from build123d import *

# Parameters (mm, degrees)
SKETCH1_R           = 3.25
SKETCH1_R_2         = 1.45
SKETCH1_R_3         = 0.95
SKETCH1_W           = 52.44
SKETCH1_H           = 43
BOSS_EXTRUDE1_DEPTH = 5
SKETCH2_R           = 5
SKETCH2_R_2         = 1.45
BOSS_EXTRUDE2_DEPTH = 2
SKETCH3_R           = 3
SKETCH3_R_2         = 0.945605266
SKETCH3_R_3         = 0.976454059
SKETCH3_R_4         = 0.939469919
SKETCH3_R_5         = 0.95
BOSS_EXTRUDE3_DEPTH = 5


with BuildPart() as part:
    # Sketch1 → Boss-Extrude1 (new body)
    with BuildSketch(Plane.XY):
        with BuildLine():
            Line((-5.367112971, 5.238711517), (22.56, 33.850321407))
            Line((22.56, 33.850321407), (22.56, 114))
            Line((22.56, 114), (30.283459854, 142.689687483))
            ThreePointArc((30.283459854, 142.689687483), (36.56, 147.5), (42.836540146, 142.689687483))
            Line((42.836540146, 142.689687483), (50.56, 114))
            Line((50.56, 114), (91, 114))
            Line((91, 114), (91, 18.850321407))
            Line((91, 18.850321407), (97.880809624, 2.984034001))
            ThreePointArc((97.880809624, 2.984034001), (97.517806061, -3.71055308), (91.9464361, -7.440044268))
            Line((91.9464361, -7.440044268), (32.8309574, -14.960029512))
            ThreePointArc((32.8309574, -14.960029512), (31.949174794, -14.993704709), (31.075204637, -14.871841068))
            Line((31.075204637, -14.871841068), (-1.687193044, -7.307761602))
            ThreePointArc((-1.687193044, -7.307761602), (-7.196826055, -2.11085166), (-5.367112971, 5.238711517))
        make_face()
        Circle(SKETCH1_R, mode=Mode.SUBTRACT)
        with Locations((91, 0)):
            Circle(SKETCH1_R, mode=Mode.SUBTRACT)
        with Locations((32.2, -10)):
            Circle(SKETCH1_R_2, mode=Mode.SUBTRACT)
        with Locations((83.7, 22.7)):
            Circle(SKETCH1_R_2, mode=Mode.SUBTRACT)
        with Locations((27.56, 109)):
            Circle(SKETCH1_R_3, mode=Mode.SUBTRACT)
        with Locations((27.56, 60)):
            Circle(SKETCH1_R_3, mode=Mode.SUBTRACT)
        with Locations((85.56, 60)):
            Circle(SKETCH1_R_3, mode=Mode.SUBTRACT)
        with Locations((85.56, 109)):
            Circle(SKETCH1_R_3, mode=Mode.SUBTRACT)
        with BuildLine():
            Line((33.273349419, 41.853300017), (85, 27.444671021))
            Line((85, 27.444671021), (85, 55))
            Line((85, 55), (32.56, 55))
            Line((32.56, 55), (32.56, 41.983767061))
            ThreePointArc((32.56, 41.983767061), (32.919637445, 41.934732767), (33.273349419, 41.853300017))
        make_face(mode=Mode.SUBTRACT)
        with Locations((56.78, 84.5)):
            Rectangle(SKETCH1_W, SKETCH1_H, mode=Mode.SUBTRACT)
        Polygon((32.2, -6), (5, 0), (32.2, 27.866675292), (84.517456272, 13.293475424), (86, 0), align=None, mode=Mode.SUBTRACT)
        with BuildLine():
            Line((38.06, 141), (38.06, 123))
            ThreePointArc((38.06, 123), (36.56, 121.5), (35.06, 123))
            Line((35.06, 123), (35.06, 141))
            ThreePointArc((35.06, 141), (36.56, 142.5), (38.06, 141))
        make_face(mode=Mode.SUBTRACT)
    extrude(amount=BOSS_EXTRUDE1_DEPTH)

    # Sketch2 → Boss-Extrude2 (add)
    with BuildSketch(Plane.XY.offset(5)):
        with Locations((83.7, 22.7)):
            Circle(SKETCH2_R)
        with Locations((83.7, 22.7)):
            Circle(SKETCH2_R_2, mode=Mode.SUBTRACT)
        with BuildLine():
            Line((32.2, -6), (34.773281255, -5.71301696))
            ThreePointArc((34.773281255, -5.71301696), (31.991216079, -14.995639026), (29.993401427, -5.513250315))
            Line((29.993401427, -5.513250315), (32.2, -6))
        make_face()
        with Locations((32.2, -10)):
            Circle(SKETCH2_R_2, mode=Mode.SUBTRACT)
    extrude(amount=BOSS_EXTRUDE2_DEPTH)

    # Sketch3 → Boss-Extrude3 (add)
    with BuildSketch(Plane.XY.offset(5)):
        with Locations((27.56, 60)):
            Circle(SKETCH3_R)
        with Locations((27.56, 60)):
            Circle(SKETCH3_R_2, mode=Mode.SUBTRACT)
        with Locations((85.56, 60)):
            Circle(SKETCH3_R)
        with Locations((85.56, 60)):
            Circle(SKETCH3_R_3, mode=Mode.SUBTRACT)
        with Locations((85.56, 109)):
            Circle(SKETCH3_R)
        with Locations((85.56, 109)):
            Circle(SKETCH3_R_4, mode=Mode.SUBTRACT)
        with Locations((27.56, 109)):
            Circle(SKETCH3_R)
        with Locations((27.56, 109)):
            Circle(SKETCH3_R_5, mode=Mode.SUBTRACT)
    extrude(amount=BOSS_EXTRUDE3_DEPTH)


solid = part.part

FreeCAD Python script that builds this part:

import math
import FreeCAD as App
import Part
import Sketcher


def add_polygon(sketch, points):
    """Adds a closed chain of lines whose ends are joined by coincident constraints."""
    first, n = sketch.GeometryCount, len(points)
    for a, b in zip(points, points[1:] + points[:1]):
        sketch.addGeometry(Part.LineSegment(App.Vector(*a, 0), App.Vector(*b, 0)), False)
    for i in range(n):
        sketch.addConstraint(Sketcher.Constraint("Coincident", first + i, 2, first + (i + 1) % n, 1))

doc = App.newDocument("Part")
body = doc.addObject("PartDesign::Body", "Body")

# Sketch on XY plane
sketch1 = body.newObject("Sketcher::SketchObject", "Sketch")
sketch1.AttachmentSupport = (doc.getObject("XY_Plane"), [""])
sketch1.MapMode = "FlatFace"
sketch1.addGeometry(Part.LineSegment(App.Vector(22.6, 33.9, 0), App.Vector(-5.4, 5.2, 0)), False)  # 0
sketch1.addGeometry(Part.ArcOfCircle(Part.Circle(App.Vector(0, 0, 0), App.Vector(0, 0, 1), 7.5), math.radians(136), math.radians(257)), False)  # 1
sketch1.addGeometry(Part.LineSegment(App.Vector(-1.7, -7.3, 0), App.Vector(31.1, -14.9, 0)), False)  # 2
sketch1.addGeometry(Part.ArcOfCircle(Part.Circle(App.Vector(32.2, -10, 0), App.Vector(0, 0, 1), 5), math.radians(-103), math.radians(-83)), False)  # 3
sketch1.addGeometry(Part.LineSegment(App.Vector(32.8, -15, 0), App.Vector(91.9, -7.4, 0)), False)  # 4
sketch1.addGeometry(Part.ArcOfCircle(Part.Circle(App.Vector(91, 0, 0), App.Vector(0, 0, 1), 7.5), math.radians(-83), math.radians(23)), False)  # 5
sketch1.addGeometry(Part.LineSegment(App.Vector(97.9, 3, 0), App.Vector(91, 18.9, 0)), False)  # 6
sketch1.addGeometry(Part.LineSegment(App.Vector(91, 18.9, 0), App.Vector(91, 114, 0)), False)  # 7
sketch1.addGeometry(Part.LineSegment(App.Vector(91, 114, 0), App.Vector(50.6, 114, 0)), False)  # 8
sketch1.addGeometry(Part.LineSegment(App.Vector(50.6, 114, 0), App.Vector(42.8, 142.7, 0)), False)  # 9
sketch1.addGeometry(Part.ArcOfCircle(Part.Circle(App.Vector(36.6, 141, 0), App.Vector(0, 0, 1), 6.5), math.radians(15), math.radians(165)), False)  # 10
sketch1.addGeometry(Part.LineSegment(App.Vector(30.3, 142.7, 0), App.Vector(22.6, 114, 0)), False)  # 11
sketch1.addGeometry(Part.LineSegment(App.Vector(22.6, 114, 0), App.Vector(22.6, 33.9, 0)), False)  # 12
sketch1.addGeometry(Part.Circle(App.Vector(91, 0, 0), App.Vector(0, 0, 1), 3.2), False)  # 13
sketch1.addGeometry(Part.Circle(App.Vector(83.7, 22.7, 0), App.Vector(0, 0, 1), 1.4), False)  # 14
sketch1.addGeometry(Part.Circle(App.Vector(85.6, 60, 0), App.Vector(0, 0, 1), 0.9), False)  # 15
sketch1.addGeometry(Part.ArcOfCircle(Part.Circle(App.Vector(32.2, 38, 0), App.Vector(0, 0, 1), 4), math.radians(74.43), math.radians(84.84)), False)  # 16
sketch1.addGeometry(Part.LineSegment(App.Vector(32.6, 42, 0), App.Vector(32.6, 55, 0)), False)  # 17
sketch1.addGeometry(Part.LineSegment(App.Vector(32.6, 55, 0), App.Vector(85, 55, 0)), False)  # 18
sketch1.addGeometry(Part.LineSegment(App.Vector(85, 55, 0), App.Vector(85, 27.4, 0)), False)  # 19
sketch1.addGeometry(Part.LineSegment(App.Vector(85, 27.4, 0), App.Vector(33.3, 41.9, 0)), False)  # 20
sketch1.addGeometry(Part.Circle(App.Vector(32.2, -10, 0), App.Vector(0, 0, 1), 1.4), False)  # 21
add_polygon(sketch1, [(32.2, -6), (5, 0), (32.2, 27.9), (84.5, 13.3), (86, 0)])  # lines 22-26
sketch1.addGeometry(Part.Circle(App.Vector(0, 0, 0), App.Vector(0, 0, 1), 3.2), False)  # 27
sketch1.addGeometry(Part.Circle(App.Vector(27.6, 60, 0), App.Vector(0, 0, 1), 0.9), False)  # 28
add_polygon(sketch1, [(30.6, 63), (30.6, 106), (83, 106), (83, 63)])  # lines 29-32
sketch1.addGeometry(Part.Circle(App.Vector(85.6, 109, 0), App.Vector(0, 0, 1), 0.9), False)  # 33
sketch1.addGeometry(Part.Circle(App.Vector(27.6, 109, 0), App.Vector(0, 0, 1), 0.9), False)  # 34
sketch1.addGeometry(Part.LineSegment(App.Vector(38.1, 141, 0), App.Vector(38.1, 123, 0)), False)  # 35
sketch1.addGeometry(Part.ArcOfCircle(Part.Circle(App.Vector(36.6, 123, 0), App.Vector(0, 0, 1), 1.5), math.radians(180), math.radians(360)), False)  # 36
sketch1.addGeometry(Part.LineSegment(App.Vector(35.1, 123, 0), App.Vector(35.1, 141, 0)), False)  # 37
sketch1.addGeometry(Part.ArcOfCircle(Part.Circle(App.Vector(36.6, 141, 0), App.Vector(0, 0, 1), 1.5), math.radians(0), math.radians(180)), False)  # 38
sketch1.addConstraint([
    Sketcher.Constraint("Tangent", 0, 2, 1, 1),
    Sketcher.Constraint("Tangent", 1, 2, 2, 1),
    Sketcher.Constraint("Tangent", 2, 2, 3, 1),
    Sketcher.Constraint("Tangent", 3, 2, 4, 1),
    Sketcher.Constraint("Tangent", 4, 2, 5, 1),
    Sketcher.Constraint("Tangent", 5, 2, 6, 1),
    Sketcher.Constraint("Coincident", 6, 2, 7, 1),
    Sketcher.Constraint("Coincident", 7, 2, 8, 1),
    Sketcher.Constraint("Coincident", 8, 2, 9, 1),
    Sketcher.Constraint("Tangent", 9, 2, 10, 1),
    Sketcher.Constraint("Tangent", 10, 2, 11, 1),
    Sketcher.Constraint("Coincident", 11, 2, 12, 1),
    Sketcher.Constraint("Coincident", 12, 2, 0, 1),
    Sketcher.Constraint("Coincident", 16, 2, 17, 1),
    Sketcher.Constraint("Coincident", 17, 2, 18, 1),
    Sketcher.Constraint("Coincident", 18, 2, 19, 1),
    Sketcher.Constraint("Coincident", 19, 2, 20, 1),
    Sketcher.Constraint("Tangent", 20, 2, 16, 1),
    Sketcher.Constraint("Tangent", 35, 2, 36, 2),
    Sketcher.Constraint("Tangent", 36, 1, 37, 1),
    Sketcher.Constraint("Tangent", 37, 2, 38, 2),
    Sketcher.Constraint("Tangent", 38, 1, 35, 1),
    Sketcher.Constraint("Vertical", 7),
    Sketcher.Constraint("Horizontal", 8),
    Sketcher.Constraint("Vertical", 12),
    Sketcher.Constraint("Vertical", 17),
    Sketcher.Constraint("Horizontal", 18),
    Sketcher.Constraint("Vertical", 19),
    Sketcher.Constraint("Vertical", 29),
    Sketcher.Constraint("Horizontal", 30),
    Sketcher.Constraint("Vertical", 31),
    Sketcher.Constraint("Horizontal", 32),
    Sketcher.Constraint("Vertical", 35),
    Sketcher.Constraint("Vertical", 37),
    Sketcher.Constraint("Coincident", 1, 3, -1, 1),
    Sketcher.Constraint("Coincident", 27, 3, -1, 1),
    Sketcher.Constraint("Coincident", 13, 3, 5, 3),
    Sketcher.Constraint("Coincident", 21, 3, 3, 3),
    Sketcher.Constraint("Coincident", 38, 3, 10, 3),
    Sketcher.Constraint("Equal", 1, 5),
    Sketcher.Constraint("Equal", 14, 21),
    Sketcher.Constraint("Equal", 13, 27),
    Sketcher.Constraint("Equal", 15, 28),
    Sketcher.Constraint("Equal", 28, 33),
    Sketcher.Constraint("Equal", 33, 34),
    Sketcher.Constraint("PointOnObject", 5, 3, -1),
    Sketcher.Constraint("PointOnObject", 22, 2, -1),
    Sketcher.Constraint("PointOnObject", 25, 2, -1),
    Sketcher.Constraint("Parallel", 0, 23),
    Sketcher.Constraint("Parallel", 20, 24),
    Sketcher.Constraint("Perpendicular", 25, 26),
    Sketcher.Constraint("Horizontal", 15, 3, 28, 3),
    Sketcher.Constraint("Horizontal", 33, 3, 34, 3),
    Sketcher.Constraint("Horizontal", 9, 2, 10, 2),
    Sketcher.Constraint("Horizontal", 8, 2, 11, 2),
    Sketcher.Constraint("Vertical", 3, 3, 16, 3),
    Sketcher.Constraint("Vertical", 15, 3, 33, 3),
    Sketcher.Constraint("Vertical", 28, 3, 34, 3),
    Sketcher.Constraint("Vertical", 13, 3, 6, 2),
    Sketcher.Constraint("Vertical", 21, 3, 23, 2),
    Sketcher.Constraint("Vertical", 23, 2, 26, 2),
    Sketcher.Constraint("Equal", 18, 30),
    Sketcher.Constraint("Radius", 3, 5.0),
    Sketcher.Constraint("Radius", 16, 4.0),
    Sketcher.Constraint("Diameter", 13, 6.5),
    Sketcher.Constraint("Diameter", 14, 2.9),
    Sketcher.Constraint("Diameter", 15, 1.9),
    Sketcher.Constraint("Radius", 1, 7.5),
    Sketcher.Constraint("Radius", 10, 6.5),
    Sketcher.Constraint("Radius", 36, 1.5),
    Sketcher.Constraint("DistanceY", 29, 1, 29, 2, 43.0),
    Sketcher.Constraint("DistanceY", 35, 2, 35, 1, 18.0),
    Sketcher.Constraint("DistanceY", 3, 3, -1, 1, 10.0),
    Sketcher.Constraint("DistanceX", -1, 1, 5, 3, 91.0),
    Sketcher.Constraint("DistanceY", -1, 1, 10, 3, 141.0),
    Sketcher.Constraint("DistanceY", -1, 1, 15, 3, 60.0),
    Sketcher.Constraint("DistanceY", -1, 1, 16, 3, 38.0),
    Sketcher.Constraint("DistanceY", -1, 1, 33, 3, 109.0),
    Sketcher.Constraint("DistanceY", -1, 1, 7, 2, 114.0),
    Sketcher.Constraint("DistanceY", -1, 1, 17, 2, 55.0),
    Sketcher.Constraint("DistanceX", -1, 1, 18, 2, 85.0),
    Sketcher.Constraint("DistanceX", -1, 1, 22, 2, 5.0),
    Sketcher.Constraint("DistanceX", -1, 1, 25, 2, 86.0),
    Sketcher.Constraint("DistanceY", 26, 2, -1, 1, 6.0),
    Sketcher.Constraint("DistanceY", -1, 1, 29, 2, 106.0),
    Sketcher.Constraint("DistanceX", -1, 1, 30, 2, 83.0),
    Sketcher.Constraint("DistanceX", 10, 3, 15, 3, 49.0),
    Sketcher.Constraint("DistanceX", 28, 3, 15, 3, 58.0),
    Sketcher.Constraint("DistanceX", 36, 3, 8, 2, 14.0),
    Sketcher.Constraint("DistanceX", 12, 2, 16, 2, 10.0),
    Sketcher.Constraint("DistanceX", 8, 2, 8, 1, 40.44),
    Sketcher.Constraint("DistanceX", -1, 1, 3, 3, 32.2),
    Sketcher.Constraint("DistanceX", -1, 1, 14, 3, 83.7),
    Sketcher.Constraint("DistanceY", -1, 1, 14, 3, 22.7),
    Sketcher.Constraint("DistanceY", 7, 1, 7, 2, 95.149679),
    Sketcher.Constraint("DistanceY", 12, 2, 12, 1, 80.149679),
    Sketcher.Constraint("DistanceY", 19, 2, 19, 1, 27.555329),
])
pad1 = body.newObject("PartDesign::Pad", "Pad")
pad1.Profile = sketch1
pad1.Length = 5

# Sketch on XY plane
sketch2 = body.newObject("Sketcher::SketchObject", "Sketch001")
sketch2.AttachmentSupport = (doc.getObject("XY_Plane"), [""])
sketch2.MapMode = "FlatFace"
sketch2.AttachmentOffset = App.Placement(App.Vector(0, 0, 5), App.Rotation())
sketch2.addGeometry([
    Part.Circle(App.Vector(83.7, 22.7, 0), App.Vector(0, 0, 1), 5),  # 0
    Part.Circle(App.Vector(83.7, 22.7, 0), App.Vector(0, 0, 1), 1.4),  # 1
    Part.LineSegment(App.Vector(34.8, -5.7, 0), App.Vector(32.2, -6, 0)),  # 2
    Part.LineSegment(App.Vector(32.2, -6, 0), App.Vector(30, -5.5, 0)),  # 3
    Part.ArcOfCircle(Part.Circle(App.Vector(32.2, -10, 0), App.Vector(0, 0, 1), 5), math.radians(116), math.radians(419)),  # 4
    Part.Circle(App.Vector(32.2, -10, 0), App.Vector(0, 0, 1), 1.4),  # 5
], False)
sketch2.addConstraint([
    Sketcher.Constraint("Coincident", 2, 2, 3, 1),
    Sketcher.Constraint("Coincident", 3, 2, 4, 1),
    Sketcher.Constraint("Coincident", 4, 2, 2, 1),
    Sketcher.Constraint("Coincident", 1, 3, 0, 3),
    Sketcher.Constraint("Coincident", 5, 3, 4, 3),
    Sketcher.Constraint("Equal", 0, 4),
    Sketcher.Constraint("Equal", 1, 5),
    Sketcher.Constraint("Vertical", 5, 3, 2, 2),
    Sketcher.Constraint("Diameter", 0, 10.0),
    Sketcher.Constraint("Diameter", 1, 2.9),
    Sketcher.Constraint("DistanceY", 4, 3, -1, 1, 10.0),
    Sketcher.Constraint("DistanceY", 2, 2, -1, 1, 6.0),
    Sketcher.Constraint("DistanceX", -1, 1, 0, 3, 83.7),
    Sketcher.Constraint("DistanceY", -1, 1, 0, 3, 22.7),
    Sketcher.Constraint("DistanceX", -1, 1, 4, 3, 32.2),
    Sketcher.Constraint("DistanceX", -1, 1, 3, 2, 29.993401),
    Sketcher.Constraint("DistanceX", -1, 1, 4, 2, 34.773281),
])
pad2 = body.newObject("PartDesign::Pad", "Pad001")
pad2.Profile = sketch2
pad2.Length = 2

# Sketch on XY plane
sketch3 = body.newObject("Sketcher::SketchObject", "Sketch002")
sketch3.AttachmentSupport = (doc.getObject("XY_Plane"), [""])
sketch3.MapMode = "FlatFace"
sketch3.AttachmentOffset = App.Placement(App.Vector(0, 0, 5), App.Rotation())
sketch3.addGeometry([
    Part.Circle(App.Vector(27.6, 60, 0), App.Vector(0, 0, 1), 3),  # 0
    Part.Circle(App.Vector(27.6, 60, 0), App.Vector(0, 0, 1), 0.9),  # 1
    Part.Circle(App.Vector(85.6, 60, 0), App.Vector(0, 0, 1), 3),  # 2
    Part.Circle(App.Vector(85.6, 60, 0), App.Vector(0, 0, 1), 1),  # 3
    Part.Circle(App.Vector(85.6, 109, 0), App.Vector(0, 0, 1), 3),  # 4
    Part.Circle(App.Vector(85.6, 109, 0), App.Vector(0, 0, 1), 0.9),  # 5
    Part.Circle(App.Vector(27.6, 109, 0), App.Vector(0, 0, 1), 3),  # 6
    Part.Circle(App.Vector(27.6, 109, 0), App.Vector(0, 0, 1), 0.9),  # 7
], False)
sketch3.addConstraint([
    Sketcher.Constraint("Coincident", 1, 3, 0, 3),
    Sketcher.Constraint("Coincident", 3, 3, 2, 3),
    Sketcher.Constraint("Coincident", 5, 3, 4, 3),
    Sketcher.Constraint("Coincident", 7, 3, 6, 3),
    Sketcher.Constraint("Equal", 0, 2),
    Sketcher.Constraint("Equal", 2, 4),
    Sketcher.Constraint("Equal", 4, 6),
    Sketcher.Constraint("Horizontal", 1, 3, 2, 3),
    Sketcher.Constraint("Horizontal", 5, 3, 6, 3),
    Sketcher.Constraint("Vertical", 3, 3, 4, 3),
    Sketcher.Constraint("Vertical", 1, 3, 6, 3),
    Sketcher.Constraint("Diameter", 0, 6.0),
    Sketcher.Constraint("Diameter", 7, 1.9),
    Sketcher.Constraint("DistanceY", -1, 1, 0, 3, 60.0),
    Sketcher.Constraint("DistanceY", -1, 1, 4, 3, 109.0),
    Sketcher.Constraint("DistanceX", 0, 3, 2, 3, 58.0),
    Sketcher.Constraint("Diameter", 1, 1.891211),
    Sketcher.Constraint("Diameter", 3, 1.952908),
    Sketcher.Constraint("Diameter", 5, 1.87894),
    Sketcher.Constraint("DistanceX", -1, 1, 0, 3, 27.56),
])
pad3 = body.newObject("PartDesign::Pad", "Pad002")
pad3.Profile = sketch3
pad3.Length = 5

doc.recompute()
